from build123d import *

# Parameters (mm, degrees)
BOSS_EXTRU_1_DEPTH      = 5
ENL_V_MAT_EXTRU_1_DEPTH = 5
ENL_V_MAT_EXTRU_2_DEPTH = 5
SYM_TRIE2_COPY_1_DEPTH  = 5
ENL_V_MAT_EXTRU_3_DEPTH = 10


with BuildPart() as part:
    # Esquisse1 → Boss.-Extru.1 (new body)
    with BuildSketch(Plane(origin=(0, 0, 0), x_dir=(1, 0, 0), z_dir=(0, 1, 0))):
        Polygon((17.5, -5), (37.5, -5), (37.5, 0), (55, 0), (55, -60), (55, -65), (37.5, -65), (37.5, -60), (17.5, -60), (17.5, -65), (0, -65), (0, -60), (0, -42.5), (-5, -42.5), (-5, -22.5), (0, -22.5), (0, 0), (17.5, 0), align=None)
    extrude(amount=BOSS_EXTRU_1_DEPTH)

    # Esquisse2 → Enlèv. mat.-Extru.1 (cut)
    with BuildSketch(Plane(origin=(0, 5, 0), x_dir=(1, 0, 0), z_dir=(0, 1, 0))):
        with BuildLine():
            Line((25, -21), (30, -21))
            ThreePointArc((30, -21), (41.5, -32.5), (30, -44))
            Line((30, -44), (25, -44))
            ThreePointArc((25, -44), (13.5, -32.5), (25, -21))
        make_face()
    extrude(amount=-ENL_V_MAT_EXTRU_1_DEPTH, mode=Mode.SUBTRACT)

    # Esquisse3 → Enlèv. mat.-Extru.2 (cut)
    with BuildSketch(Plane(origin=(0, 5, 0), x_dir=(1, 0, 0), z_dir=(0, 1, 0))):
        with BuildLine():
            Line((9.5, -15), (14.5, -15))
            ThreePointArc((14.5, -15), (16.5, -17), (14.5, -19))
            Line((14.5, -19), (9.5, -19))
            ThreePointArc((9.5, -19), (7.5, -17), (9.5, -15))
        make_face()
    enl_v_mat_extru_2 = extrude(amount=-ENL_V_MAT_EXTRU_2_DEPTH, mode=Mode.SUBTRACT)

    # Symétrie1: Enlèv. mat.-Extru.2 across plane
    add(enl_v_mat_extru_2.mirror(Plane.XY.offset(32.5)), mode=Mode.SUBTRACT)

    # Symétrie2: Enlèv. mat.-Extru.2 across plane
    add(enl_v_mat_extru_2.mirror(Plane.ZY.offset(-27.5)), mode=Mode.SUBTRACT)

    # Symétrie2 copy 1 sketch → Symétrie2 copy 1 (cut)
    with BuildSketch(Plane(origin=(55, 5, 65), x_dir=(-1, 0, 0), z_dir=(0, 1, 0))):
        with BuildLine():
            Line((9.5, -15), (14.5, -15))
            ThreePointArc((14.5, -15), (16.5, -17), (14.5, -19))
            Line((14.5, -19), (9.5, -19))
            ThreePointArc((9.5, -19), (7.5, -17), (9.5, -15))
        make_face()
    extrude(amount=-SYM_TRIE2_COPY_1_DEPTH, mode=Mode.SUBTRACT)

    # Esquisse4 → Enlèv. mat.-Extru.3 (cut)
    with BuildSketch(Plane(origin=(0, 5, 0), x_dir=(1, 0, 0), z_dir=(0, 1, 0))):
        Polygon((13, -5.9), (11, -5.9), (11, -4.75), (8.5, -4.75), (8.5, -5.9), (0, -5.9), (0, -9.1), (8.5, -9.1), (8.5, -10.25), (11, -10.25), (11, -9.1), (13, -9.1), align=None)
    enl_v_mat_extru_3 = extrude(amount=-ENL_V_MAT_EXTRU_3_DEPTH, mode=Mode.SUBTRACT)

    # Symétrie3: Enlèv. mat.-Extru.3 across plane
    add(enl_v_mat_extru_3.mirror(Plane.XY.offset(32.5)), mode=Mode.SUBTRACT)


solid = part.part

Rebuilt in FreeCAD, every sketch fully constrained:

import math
import FreeCAD as App
import Part
import Sketcher
from FreeCAD import Vector
Q = App.Units.Quantity

doc = App.newDocument("Part")
body = doc.addObject("PartDesign::Body", "Body")

# Sketch on XZ plane
sketch1 = body.newObject("Sketcher::SketchObject", "Sketch")
sketch1.AttachmentSupport = (doc.getObject("XZ_Plane"), [""])
sketch1.MapMode = "FlatFace"
sketch1.addGeometry(Part.LineSegment(Vector(37.5, 5, 0), Vector(17.5, 5, 0)), False)
sketch1.addGeometry(Part.LineSegment(Vector(17.5, 5, 0), Vector(17.5, 0, 0)), False)
sketch1.addGeometry(Part.LineSegment(Vector(17.5, 0, 0), Vector(0, 0, 0)), False)
sketch1.addGeometry(Part.LineSegment(Vector(0, 0, 0), Vector(0, 22.5, 0)), False)
sketch1.addGeometry(Part.LineSegment(Vector(0, 22.5, 0), Vector(-5, 22.5, 0)), False)
sketch1.addGeometry(Part.LineSegment(Vector(-5, 22.5, 0), Vector(-5, 42.5, 0)), False)
sketch1.addGeometry(Part.LineSegment(Vector(-5, 42.5, 0), Vector(0, 42.5, 0)), False)
sketch1.addGeometry(Part.LineSegment(Vector(0, 42.5, 0), Vector(0, 65, 0)), False)
sketch1.addGeometry(Part.LineSegment(Vector(0, 65, 0), Vector(17.5, 65, 0)), False)
sketch1.addGeometry(Part.LineSegment(Vector(17.5, 65, 0), Vector(17.5, 60, 0)), False)
sketch1.addGeometry(Part.LineSegment(Vector(17.5, 60, 0), Vector(37.5, 60, 0)), False)
sketch1.addGeometry(Part.LineSegment(Vector(37.5, 60, 0), Vector(37.5, 65, 0)), False)
sketch1.addGeometry(Part.LineSegment(Vector(37.5, 65, 0), Vector(55, 65, 0)), False)
sketch1.addGeometry(Part.LineSegment(Vector(55, 65, 0), Vector(55, 0, 0)), False)
sketch1.addGeometry(Part.LineSegment(Vector(55, 0, 0), Vector(37.5, 0, 0)), False)
sketch1.addGeometry(Part.LineSegment(Vector(37.5, 0, 0), Vector(37.5, 5, 0)), False)
sketch1.addConstraint(Sketcher.Constraint("Coincident", 0, 2, 1, 1))
sketch1.addConstraint(Sketcher.Constraint("Coincident", 1, 2, 2, 1))
sketch1.addConstraint(Sketcher.Constraint("Coincident", 2, 2, 3, 1))
sketch1.addConstraint(Sketcher.Constraint("Coincident", 3, 2, 4, 1))
sketch1.addConstraint(Sketcher.Constraint("Coincident", 4, 2, 5, 1))
sketch1.addConstraint(Sketcher.Constraint("Coincident", 5, 2, 6, 1))
sketch1.addConstraint(Sketcher.Constraint("Coincident", 6, 2, 7, 1))
sketch1.addConstraint(Sketcher.Constraint("Coincident", 7, 2, 8, 1))
sketch1.addConstraint(Sketcher.Constraint("Coincident", 8, 2, 9, 1))
sketch1.addConstraint(Sketcher.Constraint("Coincident", 9, 2, 10, 1))
sketch1.addConstraint(Sketcher.Constraint("Coincident", 10, 2, 11, 1))
sketch1.addConstraint(Sketcher.Constraint("Coincident", 11, 2, 12, 1))
sketch1.addConstraint(Sketcher.Constraint("Coincident", 12, 2, 13, 1))
sketch1.addConstraint(Sketcher.Constraint("Coincident", 13, 2, 14, 1))
sketch1.addConstraint(Sketcher.Constraint("Coincident", 14, 2, 15, 1))
sketch1.addConstraint(Sketcher.Constraint("Coincident", 15, 2, 0, 1))
sketch1.addConstraint(Sketcher.Constraint("Horizontal", 0))
sketch1.addConstraint(Sketcher.Constraint("Vertical", 1))
sketch1.addConstraint(Sketcher.Constraint("Horizontal", 2))
sketch1.addConstraint(Sketcher.Constraint("Vertical", 3))
sketch1.addConstraint(Sketcher.Constraint("Horizontal", 4))
sketch1.addConstraint(Sketcher.Constraint("Vertical", 5))
sketch1.addConstraint(Sketcher.Constraint("Horizontal", 6))
sketch1.addConstraint(Sketcher.Constraint("Vertical", 7))
sketch1.addConstraint(Sketcher.Constraint("Horizontal", 8))
sketch1.addConstraint(Sketcher.Constraint("Vertical", 9))
sketch1.addConstraint(Sketcher.Constraint("Horizontal", 10))
sketch1.addConstraint(Sketcher.Constraint("Vertical", 11))
sketch1.addConstraint(Sketcher.Constraint("Horizontal", 12))
sketch1.addConstraint(Sketcher.Constraint("Vertical", 13))
sketch1.addConstraint(Sketcher.Constraint("Horizontal", 14))
sketch1.addConstraint(Sketcher.Constraint("Vertical", 15))
sketch1.addConstraint(Sketcher.Constraint("Coincident", 2, 2, -1, 1))
sketch1.addConstraint(Sketcher.Constraint("PointOnObject", 6, 2, -2))
sketch1.addConstraint(Sketcher.Constraint("PointOnObject", 13, 2, -1))
sketch1.addConstraint(Sketcher.Constraint("Horizontal", 8, 2, 11, 2))
sketch1.addConstraint(Sketcher.Constraint("Vertical", 1, 2, 8, 2))
sketch1.addConstraint(Sketcher.Constraint("Vertical", 11, 2, 14, 2))
sketch1.addConstraint(Sketcher.Constraint("Equal", 8, 12))
sketch1.addConstraint(Sketcher.Constraint("Equal", 6, 1))
sketch1.addConstraint(Sketcher.Constraint("Equal", 10, 5))
sketch1.addConstraint(Sketcher.Constraint("Equal", 3, 7))
sketch1.addConstraint(Sketcher.Constraint("Equal", 1, 9))
sketch1.addConstraint(Sketcher.Constraint("DistanceX", 0, 2, 0, 1, Q("20 mm")))
sketch1.addConstraint(Sketcher.Constraint("DistanceX", 4, 2, 4, 1, Q("5 mm")))
sketch1.addConstraint(Sketcher.Constraint("DistanceY", 13, 2, 13, 1, Q("65 mm")))
sketch1.addConstraint(Sketcher.Constraint("DistanceX", 2, 2, 2, 1, Q("17.5 mm")))
pad1 = body.newObject("PartDesign::Pad", "Pad")
pad1.Profile = sketch1
pad1.Length = 5
pad1.Reversed = True

# Sketch on XZ plane
sketch2 = body.newObject("Sketcher::SketchObject", "Sketch001")
sketch2.AttachmentSupport = (doc.getObject("XZ_Plane"), [""])
sketch2.MapMode = "FlatFace"
sketch2.AttachmentOffset = App.Placement(Vector(0, 0, -5), App.Rotation())
sketch2.addGeometry(Part.LineSegment(Vector(30, 21, 0), Vector(25, 21, 0)), False)
sketch2.addGeometry(Part.ArcOfCircle(Part.Circle(Vector(25, 32.5, 0), Vector(0, 0, 1), 11.5), math.radians(90), math.radians(270)), False)
sketch2.addGeometry(Part.LineSegment(Vector(25, 44, 0), Vector(30, 44, 0)), False)
sketch2.addGeometry(Part.ArcOfCircle(Part.Circle(Vector(30, 32.5, 0), Vector(0, 0, 1), 11.5), math.radians(-90), math.radians(90)), False)
sketch2.addConstraint(Sketcher.Constraint("Tangent", 0, 2, 1, 2))
sketch2.addConstraint(Sketcher.Constraint("Tangent", 1, 1, 2, 1))
sketch2.addConstraint(Sketcher.Constraint("Tangent", 2, 2, 3, 2))
sketch2.addConstraint(Sketcher.Constraint("Tangent", 3, 1, 0, 1))
sketch2.addConstraint(Sketcher.Constraint("Horizontal", 0))
sketch2.addConstraint(Sketcher.Constraint("Horizontal", 2))
sketch2.addConstraint(Sketcher.Constraint("Radius", 1, Q("11.5 mm")))
sketch2.addConstraint(Sketcher.Constraint("DistanceX", 0, 2, 0, 1, Q("5 mm")))
sketch2.addConstraint(Sketcher.Constraint("DistanceX", -1, 1, 1, 3, Q("25 mm")))
sketch2.addConstraint(Sketcher.Constraint("DistanceY", -1, 1, 0, 2, Q("21 mm")))
pocket1 = body.newObject("PartDesign::Pocket", "Pocket")
pocket1.Profile = sketch2
pocket1.Length = 5
pocket1.Reversed = True

# Sketch on XZ plane
sketch3 = body.newObject("Sketcher::SketchObject", "Sketch002")
sketch3.AttachmentSupport = (doc.getObject("XZ_Plane"), [""])
sketch3.MapMode = "FlatFace"
sketch3.AttachmentOffset = App.Placement(Vector(0, 0, -5), App.Rotation())
sketch3.addGeometry(Part.LineSegment(Vector(14.5, 15, 0), Vector(9.5, 15, 0)), False)
sketch3.addGeometry(Part.ArcOfCircle(Part.Circle(Vector(9.5, 17, 0), Vector(0, 0, 1), 2), math.radians(90), math.radians(270)), False)
sketch3.addGeometry(Part.LineSegment(Vector(9.5, 19, 0), Vector(14.5, 19, 0)), False)
sketch3.addGeometry(Part.ArcOfCircle(Part.Circle(Vector(14.5, 17, 0), Vector(0, 0, 1), 2), math.radians(-90), math.radians(90)), False)
sketch3.addConstraint(Sketcher.Constraint("Tangent", 0, 2, 1, 2))
sketch3.addConstraint(Sketcher.Constraint("Tangent", 1, 1, 2, 1))
sketch3.addConstraint(Sketcher.Constraint("Tangent", 2, 2, 3, 2))
sketch3.addConstraint(Sketcher.Constraint("Tangent", 3, 1, 0, 1))
sketch3.addConstraint(Sketcher.Constraint("Horizontal", 0))
sketch3.addConstraint(Sketcher.Constraint("Horizontal", 2))
sketch3.addConstraint(Sketcher.Constraint("Radius", 1, Q("2 mm")))
sketch3.addConstraint(Sketcher.Constraint("DistanceX", 0, 2, 0, 1, Q("5 mm")))
sketch3.addConstraint(Sketcher.Constraint("DistanceY", -1, 1, 1, 3, Q("17 mm")))
sketch3.addConstraint(Sketcher.Constraint("DistanceX", -1, 1, 1, 3, Q("9.5 mm")))
pocket2 = body.newObject("PartDesign::Pocket", "Pocket001")
pocket2.Profile = sketch3
pocket2.Length = 5
pocket2.Reversed = True
doc.recompute()

datumplane = body.newObject("PartDesign::Plane", "DatumPlane")
datumplane.AttachmentSupport = (doc.getObject("XY_Plane"), [""])
datumplane.MapMode = "FlatFace"
datumplane.AttachmentOffset = App.Placement(Vector(0, 0, 32.5), App.Rotation())
mirrored = body.newObject("PartDesign::Mirrored", "Mirrored")
mirrored.Originals = [pocket2]
mirrored.MirrorPlane = (datumplane, [""])
body.Tip = mirrored
doc.recompute()

datumplane2 = body.newObject("PartDesign::Plane", "DatumPlane001")
datumplane2.AttachmentSupport = (doc.getObject("YZ_Plane"), [""])
datumplane2.MapMode = "FlatFace"
datumplane2.AttachmentOffset = App.Placement(Vector(0, 0, 27.5), App.Rotation())
mirrored2 = body.newObject("PartDesign::Mirrored", "Mirrored001")
mirrored2.Originals = [pocket2]
mirrored2.MirrorPlane = (datumplane2, [""])
body.Tip = mirrored2

# Sketch on XZ plane
sketch4 = body.newObject("Sketcher::SketchObject", "Sketch003")
sketch4.AttachmentSupport = (doc.getObject("XZ_Plane"), [""])
sketch4.MapMode = "FlatFace"
sketch4.AttachmentOffset = App.Placement(Vector(0, 0, -5), App.Rotation())
sketch4.addGeometry(Part.LineSegment(Vector(40.5, 50, 0), Vector(45.5, 50, 0)), False)
sketch4.addGeometry(Part.ArcOfCircle(Part.Circle(Vector(45.5, 48, 0), Vector(0, 0, 1), 2), math.radians(-90), math.radians(90)), False)
sketch4.addGeometry(Part.LineSegment(Vector(45.5, 46, 0), Vector(40.5, 46, 0)), False)
sketch4.addGeometry(Part.ArcOfCircle(Part.Circle(Vector(40.5, 48, 0), Vector(0, 0, 1), 2), math.radians(90), math.radians(270)), False)
sketch4.addConstraint(Sketcher.Constraint("Tangent", 0, 2, 1, 2))
sketch4.addConstraint(Sketcher.Constraint("Tangent", 1, 1, 2, 1))
sketch4.addConstraint(Sketcher.Constraint("Tangent", 2, 2, 3, 2))
sketch4.addConstraint(Sketcher.Constraint("Tangent", 3, 1, 0, 1))
sketch4.addConstraint(Sketcher.Constraint("Horizontal", 0))
sketch4.addConstraint(Sketcher.Constraint("Horizontal", 2))
sketch4.addConstraint(Sketcher.Constraint("Radius", 1, Q("2 mm")))
sketch4.addConstraint(Sketcher.Constraint("DistanceX", 0, 1, 0, 2, Q("5 mm")))
sketch4.addConstraint(Sketcher.Constraint("DistanceY", -1, 1, 1, 3, Q("48 mm")))
sketch4.addConstraint(Sketcher.Constraint("DistanceX", -1, 1, 1, 3, Q("45.5 mm")))
pocket3 = body.newObject("PartDesign::Pocket", "Pocket002")
pocket3.Profile = sketch4
pocket3.Length = 5
pocket3.Reversed = True

# Sketch on XZ plane
sketch5 = body.newObject("Sketcher::SketchObject", "Sketch004")
sketch5.AttachmentSupport = (doc.getObject("XZ_Plane"), [""])
sketch5.MapMode = "FlatFace"
sketch5.AttachmentOffset = App.Placement(Vector(0, 0, -5), App.Rotation())
sketch5.addGeometry(Part.LineSegment(Vector(13, 5.9, 0), Vector(11, 5.9, 0)), False)
sketch5.addGeometry(Part.LineSegment(Vector(11, 5.9, 0), Vector(11, 4.75, 0)), False)
sketch5.addGeometry(Part.LineSegment(Vector(11, 4.75, 0), Vector(8.5, 4.75, 0)), False)
sketch5.addGeometry(Part.LineSegment(Vector(8.5, 4.75, 0), Vector(8.5, 5.9, 0)), False)
sketch5.addGeometry(Part.LineSegment(Vector(8.5, 5.9, 0), Vector(0, 5.9, 0)), False)
sketch5.addGeometry(Part.LineSegment(Vector(0, 5.9, 0), Vector(0, 9.1, 0)), False)
sketch5.addGeometry(Part.LineSegment(Vector(0, 9.1, 0), Vector(8.5, 9.1, 0)), False)
sketch5.addGeometry(Part.LineSegment(Vector(8.5, 9.1, 0), Vector(8.5, 10.25, 0)), False)
sketch5.addGeometry(Part.LineSegment(Vector(8.5, 10.25, 0), Vector(11, 10.25, 0)), False)
sketch5.addGeometry(Part.LineSegment(Vector(11, 10.25, 0), Vector(11, 9.1, 0)), False)
sketch5.addGeometry(Part.LineSegment(Vector(11, 9.1, 0), Vector(13, 9.1, 0)), False)
sketch5.addGeometry(Part.LineSegment(Vector(13, 9.1, 0), Vector(13, 5.9, 0)), False)
sketch5.addConstraint(Sketcher.Constraint("Coincident", 0, 2, 1, 1))
sketch5.addConstraint(Sketcher.Constraint("Coincident", 1, 2, 2, 1))
sketch5.addConstraint(Sketcher.Constraint("Coincident", 2, 2, 3, 1))
sketch5.addConstraint(Sketcher.Constraint("Coincident", 3, 2, 4, 1))
sketch5.addConstraint(Sketcher.Constraint("Coincident", 4, 2, 5, 1))
sketch5.addConstraint(Sketcher.Constraint("Coincident", 5, 2, 6, 1))
sketch5.addConstraint(Sketcher.Constraint("Coincident", 6, 2, 7, 1))
sketch5.addConstraint(Sketcher.Constraint("Coincident", 7, 2, 8, 1))
sketch5.addConstraint(Sketcher.Constraint("Coincident", 8, 2, 9, 1))
sketch5.addConstraint(Sketcher.Constraint("Coincident", 9, 2, 10, 1))
sketch5.addConstraint(Sketcher.Constraint("Coincident", 10, 2, 11, 1))
sketch5.addConstraint(Sketcher.Constraint("Coincident", 11, 2, 0, 1))
sketch5.addConstraint(Sketcher.Constraint("Horizontal", 0))
sketch5.addConstraint(Sketcher.Constraint("Vertical", 1))
sketch5.addConstraint(Sketcher.Constraint("Horizontal", 2))
sketch5.addConstraint(Sketcher.Constraint("Vertical", 3))
sketch5.addConstraint(Sketcher.Constraint("Horizontal", 4))
sketch5.addConstraint(Sketcher.Constraint("Vertical", 5))
sketch5.addConstraint(Sketcher.Constraint("Horizontal", 6))
sketch5.addConstraint(Sketcher.Constraint("Vertical", 7))
sketch5.addConstraint(Sketcher.Constraint("Horizontal", 8))
sketch5.addConstraint(Sketcher.Constraint("Vertical", 9))
sketch5.addConstraint(Sketcher.Constraint("Horizontal", 10))
sketch5.addConstraint(Sketcher.Constraint("Vertical", 11))
sketch5.addConstraint(Sketcher.Constraint("PointOnObject", 4, 2, -2))
sketch5.addConstraint(Sketcher.Constraint("Horizontal", 0, 2, 3, 2))
sketch5.addConstraint(Sketcher.Constraint("Horizontal", 6, 2, 9, 2))
sketch5.addConstraint(Sketcher.Constraint("Vertical", 3, 2, 6, 2))
sketch5.addConstraint(Sketcher.Constraint("Vertical", 1, 2, 8, 2))
sketch5.addConstraint(Sketcher.Constraint("Equal", 3, 7))
sketch5.addConstraint(Sketcher.Constraint("DistanceX", 0, 2, 0, 1, Q("2 mm")))
sketch5.addConstraint(Sketcher.Constraint("DistanceX", 2, 2, 2, 1, Q("2.5 mm")))
sketch5.addConstraint(Sketcher.Constraint("DistanceX", 4, 2, 4, 1, Q("8.5 mm")))
sketch5.addConstraint(Sketcher.Constraint("DistanceY", 5, 1, 5, 2, Q("3.2 mm")))
sketch5.addConstraint(Sketcher.Constraint("DistanceY", 1, 2, 1, 1, Q("1.15 mm")))
sketch5.addConstraint(Sketcher.Constraint("DistanceY", -1, 1, 0, 2, Q("5.9 mm")))
pocket4 = body.newObject("PartDesign::Pocket", "Pocket003")
pocket4.Profile = sketch5
pocket4.Length = 10
pocket4.Reversed = True
doc.recompute()

datumplane3 = body.newObject("PartDesign::Plane", "DatumPlane002")
datumplane3.AttachmentSupport = (doc.getObject("XY_Plane"), [""])
datumplane3.MapMode = "FlatFace"
datumplane3.AttachmentOffset = App.Placement(Vector(0, 0, 32.5), App.Rotation())
mirrored3 = body.newObject("PartDesign::Mirrored", "Mirrored002")
mirrored3.Originals = [pocket4]
mirrored3.MirrorPlane = (datumplane3, [""])
body.Tip = mirrored3

doc.recompute()
